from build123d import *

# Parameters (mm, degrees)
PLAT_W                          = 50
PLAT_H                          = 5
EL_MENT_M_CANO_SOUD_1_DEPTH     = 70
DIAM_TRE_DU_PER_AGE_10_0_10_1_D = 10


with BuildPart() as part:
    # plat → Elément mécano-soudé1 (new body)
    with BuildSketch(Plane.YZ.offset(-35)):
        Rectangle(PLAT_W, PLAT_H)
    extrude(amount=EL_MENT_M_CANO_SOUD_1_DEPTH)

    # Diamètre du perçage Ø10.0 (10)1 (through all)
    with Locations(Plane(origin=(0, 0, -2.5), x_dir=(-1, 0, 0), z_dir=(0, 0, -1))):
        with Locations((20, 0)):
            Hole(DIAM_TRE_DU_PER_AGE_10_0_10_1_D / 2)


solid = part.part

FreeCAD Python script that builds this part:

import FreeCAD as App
import Part
import Sketcher
from FreeCAD import Vector
Q = App.Units.Quantity


def add_polygon(sketch, points):
    """Adds a closed chain of lines whose ends are joined by coincident constraints."""
    first, n = sketch.GeometryCount, len(points)
    for a, b in zip(points, points[1:] + points[:1]):
        sketch.addGeometry(Part.LineSegment(App.Vector(*a, 0), App.Vector(*b, 0)), False)
    for i in range(n):
        sketch.addConstraint(Sketcher.Constraint("Coincident", first + i, 2, first + (i + 1) % n, 1))

doc = App.newDocument("Part")
body = doc.addObject("PartDesign::Body", "Body")

# Sketch on YZ plane
sketch1 = body.newObject("Sketcher::SketchObject", "Sketch")
sketch1.AttachmentSupport = (doc.getObject("YZ_Plane"), [""])
sketch1.MapMode = "FlatFace"
sketch1.AttachmentOffset = App.Placement(Vector(0, 0, -35), App.Rotation())
add_polygon(sketch1, [(-25, 2.5), (-25, -2.5), (25, -2.5), (25, 2.5)])  # lines 0-3
sketch1.addConstraint([
    Sketcher.Constraint("Vertical", 0),
    Sketcher.Constraint("Horizontal", 1),
    Sketcher.Constraint("Vertical", 2),
    Sketcher.Constraint("Horizontal", 3),
    Sketcher.Constraint("Symmetric", 0, 2, 2, 2, -1, 1),
    Sketcher.Constraint("DistanceX", 1, 1, 1, 2, Q("50 mm")),
    Sketcher.Constraint("DistanceY", 0, 2, 0, 1, Q("5 mm")),
])
pad1 = body.newObject("PartDesign::Pad", "Pad")
pad1.Profile = sketch1
pad1.Length = 70

# Sketch on XY plane
sketch2 = body.newObject("Sketcher::SketchObject", "Sketch001")
sketch2.AttachmentSupport = (doc.getObject("XY_Plane"), [""])
sketch2.MapMode = "FlatFace"
sketch2.AttachmentOffset = App.Placement(Vector(0, 0, -2.5), App.Rotation())
sketch2.addGeometry(Part.Circle(Vector(-20, 0, 0), Vector(0, 0, 1), 5), False)
sketch2.addConstraint([
    Sketcher.Constraint("PointOnObject", 0, 3, -1),
    Sketcher.Constraint("Diameter", 0, Q("10 mm")),
    Sketcher.Constraint("DistanceX", 0, 3, -1, 1, Q("20 mm")),
])
doc.recompute()
hole = body.newObject("PartDesign::Hole", "Hole")
hole.Profile = sketch2
hole.ThreadType = "None"
hole.Diameter = 10
hole.DepthType = "ThroughAll"
hole.Reversed = True

doc.recompute()
